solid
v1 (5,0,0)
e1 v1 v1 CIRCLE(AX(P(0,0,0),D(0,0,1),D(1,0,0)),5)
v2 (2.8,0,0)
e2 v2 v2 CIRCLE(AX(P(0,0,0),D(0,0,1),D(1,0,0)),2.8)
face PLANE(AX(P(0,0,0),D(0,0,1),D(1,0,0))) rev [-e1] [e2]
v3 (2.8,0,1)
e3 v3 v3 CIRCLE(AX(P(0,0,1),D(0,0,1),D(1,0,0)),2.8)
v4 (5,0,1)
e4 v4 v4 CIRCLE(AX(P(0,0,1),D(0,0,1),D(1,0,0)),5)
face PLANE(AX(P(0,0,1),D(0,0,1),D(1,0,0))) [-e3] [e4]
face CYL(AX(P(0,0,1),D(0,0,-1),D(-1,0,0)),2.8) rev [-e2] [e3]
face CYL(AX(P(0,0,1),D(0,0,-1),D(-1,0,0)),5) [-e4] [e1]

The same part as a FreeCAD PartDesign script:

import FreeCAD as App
import Part
import Sketcher
Q = App.Units.Quantity

doc = App.newDocument("Part")
body = doc.addObject("PartDesign::Body", "Body")

# Sketch on XY plane
sketch1 = doc.addObject("Sketcher::SketchObject", "Sketch")
body.addObject(sketch1)
sketch1.AttachmentSupport = (doc.XY_Plane, [""])
sketch1.MapMode = "FlatFace"
sketch1.addGeometry([
    Part.Circle(App.Vector(0, 0, 0), App.Vector(0, 0, 1), 5),
    Part.Circle(App.Vector(0, 0, 0), App.Vector(0, 0, 1), 2.8),
], False)
sketch1.addConstraint([
    Sketcher.Constraint("Coincident", 0, 3, -1, 1),
    Sketcher.Constraint("Coincident", 1, 3, -1, 1),
    Sketcher.Constraint("Diameter", 0, Q("10 mm")),
    Sketcher.Constraint("Diameter", 1, Q("5.6 mm")),
])
pad1 = doc.addObject("PartDesign::Pad", "Pad")
body.addObject(pad1)
pad1.Profile = sketch1
pad1.Length = 1

doc.recompute()
